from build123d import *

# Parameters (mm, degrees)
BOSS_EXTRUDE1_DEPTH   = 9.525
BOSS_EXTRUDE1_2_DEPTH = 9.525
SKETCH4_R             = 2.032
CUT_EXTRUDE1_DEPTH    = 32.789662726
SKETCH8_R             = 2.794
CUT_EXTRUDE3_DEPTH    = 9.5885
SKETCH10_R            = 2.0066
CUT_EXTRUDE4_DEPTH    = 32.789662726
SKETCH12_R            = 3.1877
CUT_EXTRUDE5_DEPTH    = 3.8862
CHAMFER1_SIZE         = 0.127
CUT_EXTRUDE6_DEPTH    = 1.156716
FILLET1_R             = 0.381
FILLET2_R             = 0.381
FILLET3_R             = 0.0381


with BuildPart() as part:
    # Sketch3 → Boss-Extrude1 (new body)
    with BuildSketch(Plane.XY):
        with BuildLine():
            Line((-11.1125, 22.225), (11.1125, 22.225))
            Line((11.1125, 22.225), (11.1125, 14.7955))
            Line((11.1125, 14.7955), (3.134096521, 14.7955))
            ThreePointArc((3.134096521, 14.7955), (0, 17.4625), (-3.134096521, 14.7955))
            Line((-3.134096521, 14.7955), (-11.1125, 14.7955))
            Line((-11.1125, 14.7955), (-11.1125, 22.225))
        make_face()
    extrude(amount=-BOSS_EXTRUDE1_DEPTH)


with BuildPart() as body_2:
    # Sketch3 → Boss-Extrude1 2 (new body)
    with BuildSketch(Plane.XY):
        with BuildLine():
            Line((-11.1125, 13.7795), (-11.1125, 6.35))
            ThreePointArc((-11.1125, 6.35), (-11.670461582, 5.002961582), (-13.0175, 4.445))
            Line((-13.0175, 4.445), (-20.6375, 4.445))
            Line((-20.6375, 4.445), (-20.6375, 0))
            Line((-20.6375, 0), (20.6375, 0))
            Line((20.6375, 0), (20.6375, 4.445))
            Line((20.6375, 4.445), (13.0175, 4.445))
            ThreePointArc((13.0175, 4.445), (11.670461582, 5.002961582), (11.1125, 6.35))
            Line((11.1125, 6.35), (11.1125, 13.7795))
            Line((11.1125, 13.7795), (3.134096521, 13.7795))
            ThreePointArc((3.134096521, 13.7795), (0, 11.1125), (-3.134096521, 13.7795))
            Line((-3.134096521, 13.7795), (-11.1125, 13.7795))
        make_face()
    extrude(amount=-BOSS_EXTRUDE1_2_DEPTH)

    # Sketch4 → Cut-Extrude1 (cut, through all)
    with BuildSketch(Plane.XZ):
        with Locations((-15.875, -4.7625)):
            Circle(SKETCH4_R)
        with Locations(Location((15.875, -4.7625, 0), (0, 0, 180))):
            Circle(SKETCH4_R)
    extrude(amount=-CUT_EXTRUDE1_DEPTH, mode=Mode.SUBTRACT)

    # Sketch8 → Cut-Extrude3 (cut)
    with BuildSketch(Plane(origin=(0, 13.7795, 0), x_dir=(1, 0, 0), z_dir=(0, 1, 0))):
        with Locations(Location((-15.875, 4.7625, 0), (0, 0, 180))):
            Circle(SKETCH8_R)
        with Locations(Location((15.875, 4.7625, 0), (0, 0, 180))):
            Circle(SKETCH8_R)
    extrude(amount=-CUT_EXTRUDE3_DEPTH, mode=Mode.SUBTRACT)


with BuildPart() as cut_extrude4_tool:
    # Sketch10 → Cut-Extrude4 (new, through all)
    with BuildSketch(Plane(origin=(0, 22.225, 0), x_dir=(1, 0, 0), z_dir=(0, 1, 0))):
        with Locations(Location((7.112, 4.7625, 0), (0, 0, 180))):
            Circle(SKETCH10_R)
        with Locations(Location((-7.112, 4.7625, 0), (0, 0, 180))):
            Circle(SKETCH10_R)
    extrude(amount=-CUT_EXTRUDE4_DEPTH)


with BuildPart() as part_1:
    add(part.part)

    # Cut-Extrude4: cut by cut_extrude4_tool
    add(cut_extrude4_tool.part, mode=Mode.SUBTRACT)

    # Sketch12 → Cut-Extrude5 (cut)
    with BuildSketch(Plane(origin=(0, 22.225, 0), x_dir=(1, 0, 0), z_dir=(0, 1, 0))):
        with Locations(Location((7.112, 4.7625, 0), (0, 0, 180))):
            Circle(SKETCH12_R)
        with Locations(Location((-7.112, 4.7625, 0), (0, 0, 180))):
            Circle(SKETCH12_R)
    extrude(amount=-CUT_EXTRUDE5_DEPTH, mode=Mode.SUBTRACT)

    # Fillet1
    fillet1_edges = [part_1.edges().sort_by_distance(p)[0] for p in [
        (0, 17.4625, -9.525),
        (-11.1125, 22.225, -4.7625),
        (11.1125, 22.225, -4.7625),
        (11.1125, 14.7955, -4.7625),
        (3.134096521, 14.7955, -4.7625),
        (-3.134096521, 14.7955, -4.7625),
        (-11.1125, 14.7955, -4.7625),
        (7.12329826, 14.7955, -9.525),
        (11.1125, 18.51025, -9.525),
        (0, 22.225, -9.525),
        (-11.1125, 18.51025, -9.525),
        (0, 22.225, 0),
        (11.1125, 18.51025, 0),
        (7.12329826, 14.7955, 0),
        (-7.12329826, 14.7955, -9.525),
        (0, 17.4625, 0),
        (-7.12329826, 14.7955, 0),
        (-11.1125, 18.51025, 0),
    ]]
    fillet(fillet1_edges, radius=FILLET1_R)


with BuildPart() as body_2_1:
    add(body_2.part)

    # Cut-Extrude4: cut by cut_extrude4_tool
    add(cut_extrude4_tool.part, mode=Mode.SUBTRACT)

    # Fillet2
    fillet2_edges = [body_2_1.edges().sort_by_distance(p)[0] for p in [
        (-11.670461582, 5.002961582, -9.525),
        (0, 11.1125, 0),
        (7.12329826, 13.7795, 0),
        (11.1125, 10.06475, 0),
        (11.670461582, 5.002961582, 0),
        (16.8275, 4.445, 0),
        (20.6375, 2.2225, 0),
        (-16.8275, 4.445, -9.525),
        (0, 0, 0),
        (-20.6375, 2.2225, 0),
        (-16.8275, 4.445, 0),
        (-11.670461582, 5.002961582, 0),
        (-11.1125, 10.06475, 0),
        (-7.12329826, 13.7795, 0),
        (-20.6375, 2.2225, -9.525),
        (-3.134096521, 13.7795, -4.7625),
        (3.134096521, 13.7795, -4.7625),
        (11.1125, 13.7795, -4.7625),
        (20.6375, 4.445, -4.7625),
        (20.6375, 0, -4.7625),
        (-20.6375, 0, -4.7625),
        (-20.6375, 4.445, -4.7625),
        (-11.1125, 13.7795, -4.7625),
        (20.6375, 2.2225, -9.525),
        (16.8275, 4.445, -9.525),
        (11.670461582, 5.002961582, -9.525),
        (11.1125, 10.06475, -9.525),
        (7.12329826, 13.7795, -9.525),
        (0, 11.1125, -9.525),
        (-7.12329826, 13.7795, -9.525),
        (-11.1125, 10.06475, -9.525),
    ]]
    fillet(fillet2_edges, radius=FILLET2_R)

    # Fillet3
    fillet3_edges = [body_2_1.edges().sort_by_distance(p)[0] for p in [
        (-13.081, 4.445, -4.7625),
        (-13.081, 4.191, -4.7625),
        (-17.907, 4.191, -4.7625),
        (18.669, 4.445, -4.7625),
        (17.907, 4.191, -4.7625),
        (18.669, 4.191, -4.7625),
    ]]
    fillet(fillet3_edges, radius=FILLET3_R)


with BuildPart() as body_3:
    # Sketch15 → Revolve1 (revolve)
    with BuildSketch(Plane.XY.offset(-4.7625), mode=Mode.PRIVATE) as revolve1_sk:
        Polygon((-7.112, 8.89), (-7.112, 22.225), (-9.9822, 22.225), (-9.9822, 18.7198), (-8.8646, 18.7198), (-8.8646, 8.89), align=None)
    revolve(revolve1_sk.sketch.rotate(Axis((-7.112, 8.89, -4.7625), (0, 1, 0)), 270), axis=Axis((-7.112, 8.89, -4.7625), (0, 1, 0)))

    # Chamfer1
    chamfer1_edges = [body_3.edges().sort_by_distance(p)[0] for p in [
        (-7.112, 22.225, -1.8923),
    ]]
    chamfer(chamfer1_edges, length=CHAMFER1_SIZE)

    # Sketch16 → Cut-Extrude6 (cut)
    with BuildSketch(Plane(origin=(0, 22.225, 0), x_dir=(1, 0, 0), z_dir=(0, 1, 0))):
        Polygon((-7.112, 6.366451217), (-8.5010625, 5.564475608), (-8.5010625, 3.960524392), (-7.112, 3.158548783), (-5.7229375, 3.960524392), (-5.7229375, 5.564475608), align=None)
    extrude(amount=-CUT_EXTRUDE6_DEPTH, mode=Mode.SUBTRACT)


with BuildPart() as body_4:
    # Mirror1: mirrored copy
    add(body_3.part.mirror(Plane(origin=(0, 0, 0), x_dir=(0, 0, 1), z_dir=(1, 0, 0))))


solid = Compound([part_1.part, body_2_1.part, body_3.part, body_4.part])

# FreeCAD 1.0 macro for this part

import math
import FreeCAD as App
import Part
import Sketcher
from FreeCAD import Vector
Q = App.Units.Quantity


def edges_at(feature, points):
    """Names of the edges that pass closest to the given points."""
    edges = feature.Shape.Edges
    near = lambda p: min(range(len(edges)), key=lambda i: edges[i].distToShape(Part.Vertex(*p))[0])
    return sorted({f"Edge{near(p) + 1}" for p in points})


def add_polygon(sketch, points):
    """Adds a closed chain of lines whose ends are joined by coincident constraints."""
    first, n = sketch.GeometryCount, len(points)
    for a, b in zip(points, points[1:] + points[:1]):
        sketch.addGeometry(Part.LineSegment(App.Vector(*a, 0), App.Vector(*b, 0)), False)
    for i in range(n):
        sketch.addConstraint(Sketcher.Constraint("Coincident", first + i, 2, first + (i + 1) % n, 1))

doc = App.newDocument("Part")
body = doc.addObject("PartDesign::Body", "Body")

sketch1 = body.newObject("Sketcher::SketchObject", "Sketch")
sketch1.AttachmentSupport = (doc.getObject("XY_Plane"), [""])
sketch1.MapMode = "FlatFace"
sketch1.addGeometry(Part.LineSegment(Vector(11.1125, 22.225, 0), Vector(-11.1125, 22.225, 0)), False)
sketch1.addGeometry(Part.LineSegment(Vector(-11.1125, 22.225, 0), Vector(-11.1125, 14.7955, 0)), False)
sketch1.addGeometry(Part.LineSegment(Vector(-11.1125, 14.7955, 0), Vector(-3.134097, 14.7955, 0)), False)
sketch1.addGeometry(Part.ArcOfCircle(Part.Circle(Vector(0, 14.2875, 0), Vector(0, 0, 1), 3.175), math.radians(9.206896), math.radians(170.793104)), False)
sketch1.addGeometry(Part.LineSegment(Vector(3.134097, 14.7955, 0), Vector(11.1125, 14.7955, 0)), False)
sketch1.addGeometry(Part.LineSegment(Vector(11.1125, 14.7955, 0), Vector(11.1125, 22.225, 0)), False)
sketch1.addConstraint(Sketcher.Constraint("Coincident", 0, 2, 1, 1))
sketch1.addConstraint(Sketcher.Constraint("Coincident", 1, 2, 2, 1))
sketch1.addConstraint(Sketcher.Constraint("Coincident", 2, 2, 3, 2))
sketch1.addConstraint(Sketcher.Constraint("Coincident", 3, 1, 4, 1))
sketch1.addConstraint(Sketcher.Constraint("Coincident", 4, 2, 5, 1))
sketch1.addConstraint(Sketcher.Constraint("Coincident", 5, 2, 0, 1))
sketch1.addConstraint(Sketcher.Constraint("Horizontal", 0))
sketch1.addConstraint(Sketcher.Constraint("Vertical", 1))
sketch1.addConstraint(Sketcher.Constraint("Horizontal", 2))
sketch1.addConstraint(Sketcher.Constraint("Horizontal", 4))
sketch1.addConstraint(Sketcher.Constraint("Vertical", 5))
sketch1.addConstraint(Sketcher.Constraint("Symmetric", 2, 2, 3, 1, -2))
sketch1.addConstraint(Sketcher.Constraint("Equal", 2, 4))
sketch1.addConstraint(Sketcher.Constraint("Radius", 3, Q("0.125 in")))
sketch1.addConstraint(Sketcher.Constraint("DistanceX", 0, 2, 0, 1, Q("0.875 in")))
sketch1.addConstraint(Sketcher.Constraint("DistanceY", 3, 3, 1, 2, Q("0.02 in")))
sketch1.addConstraint(Sketcher.Constraint("DistanceY", 1, 2, 1, 1, Q("0.2925 in")))
sketch1.addConstraint(Sketcher.Constraint("DistanceY", -1, 1, 3, 3, Q("0.5625 in")))
pad1 = body.newObject("PartDesign::Pad", "Pad")
pad1.Profile = sketch1
pad1.Length = Q("0.375 in")
pad1.Reversed = True
body2 = doc.addObject("PartDesign::Body", "Body001")

sketch2 = body2.newObject("Sketcher::SketchObject", "Sketch001")
sketch2.AttachmentSupport = (doc.getObject("XY_Plane001"), [""])
sketch2.MapMode = "FlatFace"
sketch2.addGeometry(Part.LineSegment(Vector(-11.1125, 13.7795, 0), Vector(-11.1125, 6.35, 0)), False)
sketch2.addGeometry(Part.ArcOfCircle(Part.Circle(Vector(-13.0175, 6.35, 0), Vector(0, 0, 1), 1.905), math.radians(-90), math.radians(0)), False)
sketch2.addGeometry(Part.LineSegment(Vector(-13.0175, 4.445, 0), Vector(-20.6375, 4.445, 0)), False)
sketch2.addGeometry(Part.LineSegment(Vector(-20.6375, 4.445, 0), Vector(-20.6375, 0, 0)), False)
sketch2.addGeometry(Part.LineSegment(Vector(-20.6375, 0, 0), Vector(20.6375, 0, 0)), False)
sketch2.addGeometry(Part.LineSegment(Vector(20.6375, 0, 0), Vector(20.6375, 4.445, 0)), False)
sketch2.addGeometry(Part.LineSegment(Vector(20.6375, 4.445, 0), Vector(13.0175, 4.445, 0)), False)
sketch2.addGeometry(Part.ArcOfCircle(Part.Circle(Vector(13.0175, 6.35, 0), Vector(0, 0, 1), 1.905), math.radians(-180), math.radians(-90)), False)
sketch2.addGeometry(Part.LineSegment(Vector(11.1125, 6.35, 0), Vector(11.1125, 13.7795, 0)), False)
sketch2.addGeometry(Part.LineSegment(Vector(11.1125, 13.7795, 0), Vector(3.134097, 13.7795, 0)), False)
sketch2.addGeometry(Part.ArcOfCircle(Part.Circle(Vector(0, 14.2875, 0), Vector(0, 0, 1), 3.175), math.radians(-170.793104), math.radians(-9.206896)), False)
sketch2.addGeometry(Part.LineSegment(Vector(-3.134097, 13.7795, 0), Vector(-11.1125, 13.7795, 0)), False)
sketch2.addConstraint(Sketcher.Constraint("Tangent", 0, 2, 1, 2))
sketch2.addConstraint(Sketcher.Constraint("Tangent", 1, 1, 2, 1))
sketch2.addConstraint(Sketcher.Constraint("Coincident", 2, 2, 3, 1))
sketch2.addConstraint(Sketcher.Constraint("Coincident", 3, 2, 4, 1))
sketch2.addConstraint(Sketcher.Constraint("Coincident", 4, 2, 5, 1))
sketch2.addConstraint(Sketcher.Constraint("Coincident", 5, 2, 6, 1))
sketch2.addConstraint(Sketcher.Constraint("Tangent", 6, 2, 7, 2))
sketch2.addConstraint(Sketcher.Constraint("Tangent", 7, 1, 8, 1))
sketch2.addConstraint(Sketcher.Constraint("Coincident", 8, 2, 9, 1))
sketch2.addConstraint(Sketcher.Constraint("Coincident", 9, 2, 10, 2))
sketch2.addConstraint(Sketcher.Constraint("Coincident", 10, 1, 11, 1))
sketch2.addConstraint(Sketcher.Constraint("Coincident", 11, 2, 0, 1))
sketch2.addConstraint(Sketcher.Constraint("Vertical", 0))
sketch2.addConstraint(Sketcher.Constraint("Horizontal", 2))
sketch2.addConstraint(Sketcher.Constraint("Vertical", 3))
sketch2.addConstraint(Sketcher.Constraint("Horizontal", 4))
sketch2.addConstraint(Sketcher.Constraint("Vertical", 5))
sketch2.addConstraint(Sketcher.Constraint("Horizontal", 6))
sketch2.addConstraint(Sketcher.Constraint("Vertical", 8))
sketch2.addConstraint(Sketcher.Constraint("Horizontal", 9))
sketch2.addConstraint(Sketcher.Constraint("Horizontal", 11))
sketch2.addConstraint(Sketcher.Constraint("Equal", 1, 7))
sketch2.addConstraint(Sketcher.Constraint("Symmetric", 3, 2, 4, 2, -1, 1))
sketch2.addConstraint(Sketcher.Constraint("Symmetric", 1, 3, 7, 3, -2))
sketch2.addConstraint(Sketcher.Constraint("Symmetric", 9, 2, 10, 1, -2))
sketch2.addConstraint(Sketcher.Constraint("DistanceX", 2, 2, 2, 1, Q("0.3 in")))
sketch2.addConstraint(Sketcher.Constraint("Radius", 1, Q("0.075 in")))
sketch2.addConstraint(Sketcher.Constraint("Radius", 10, Q("0.125 in")))
sketch2.addConstraint(Sketcher.Constraint("DistanceX", 4, 1, 4, 2, Q("1.625 in")))
sketch2.addConstraint(Sketcher.Constraint("DistanceY", 3, 2, 3, 1, Q("0.175 in")))
sketch2.addConstraint(Sketcher.Constraint("DistanceY", 8, 2, 10, 3, Q("0.02 in")))
sketch2.addConstraint(Sketcher.Constraint("DistanceY", 0, 2, 0, 1, Q("0.2925 in")))
pad2 = body2.newObject("PartDesign::Pad", "Pad001")
pad2.Profile = sketch2
pad2.Length = Q("0.375 in")
pad2.Reversed = True

sketch3 = body2.newObject("Sketcher::SketchObject", "Sketch002")
sketch3.AttachmentSupport = (doc.getObject("XZ_Plane001"), [""])
sketch3.MapMode = "FlatFace"
sketch3.addGeometry(Part.Circle(Vector(-15.875, -4.7625, 0), Vector(0, 0, 1), 2.032), False)
sketch3.addGeometry(Part.Circle(Vector(15.875, -4.7625, 0), Vector(0, 0, 1), 2.032), False)
sketch3.addConstraint(Sketcher.Constraint("Equal", 0, 1))
sketch3.addConstraint(Sketcher.Constraint("Symmetric", 0, 3, 1, 3, -2))
sketch3.addConstraint(Sketcher.Constraint("Diameter", 0, Q("0.16 in")))
sketch3.addConstraint(Sketcher.Constraint("DistanceX", 0, 3, 1, 3, Q("1.25 in")))
sketch3.addConstraint(Sketcher.Constraint("DistanceY", 0, 3, -1, 1, Q("0.1875 in")))
pocket1 = body2.newObject("PartDesign::Pocket", "Pocket")
pocket1.Profile = sketch3
pocket1.Type = "ThroughAll"

sketch4 = body2.newObject("Sketcher::SketchObject", "Sketch003")
sketch4.AttachmentSupport = (doc.getObject("XZ_Plane001"), [""])
sketch4.MapMode = "FlatFace"
sketch4.AttachmentOffset = App.Placement(Vector(0, 0, -0.5425 * 25.4), App.Rotation())
sketch4.addGeometry(Part.Circle(Vector(-15.875, -4.7625, 0), Vector(0, 0, 1), 2.794), False)
sketch4.addGeometry(Part.Circle(Vector(15.875, -4.7625, 0), Vector(0, 0, 1), 2.794), False)
sketch4.addConstraint(Sketcher.Constraint("Equal", 0, 1))
sketch4.addConstraint(Sketcher.Constraint("Symmetric", 0, 3, 1, 3, -2))
sketch4.addConstraint(Sketcher.Constraint("Diameter", 0, Q("0.22 in")))
sketch4.addConstraint(Sketcher.Constraint("DistanceX", 0, 3, 1, 3, Q("1.25 in")))
sketch4.addConstraint(Sketcher.Constraint("DistanceY", 0, 3, -1, 1, Q("0.1875 in")))
pocket2 = body2.newObject("PartDesign::Pocket", "Pocket001")
pocket2.Profile = sketch4
pocket2.Length = Q("0.3775 in")
pocket2.Reversed = True
body3 = doc.addObject("PartDesign::Body", "Body002")
body3.AllowCompound = True

sketch5 = body3.newObject("Sketcher::SketchObject", "Sketch004")
sketch5.AttachmentSupport = (doc.getObject("XZ_Plane002"), [""])
sketch5.MapMode = "FlatFace"
sketch5.AttachmentOffset = App.Placement(Vector(0, 0, -0.875 * 25.4), App.Rotation())
sketch5.addGeometry(Part.Circle(Vector(7.112, -4.7625, 0), Vector(0, 0, 1), 2.0066), False)
sketch5.addGeometry(Part.Circle(Vector(-7.112, -4.7625, 0), Vector(0, 0, 1), 2.0066), False)
sketch5.addConstraint(Sketcher.Constraint("Equal", 0, 1))
sketch5.addConstraint(Sketcher.Constraint("Symmetric", 0, 3, 1, 3, -2))
sketch5.addConstraint(Sketcher.Constraint("Diameter", 0, Q("0.158 in")))
sketch5.addConstraint(Sketcher.Constraint("DistanceX", -1, 1, 0, 3, Q("0.28 in")))
sketch5.addConstraint(Sketcher.Constraint("DistanceY", 0, 3, -1, 1, Q("0.1875 in")))
pad3 = body3.newObject("PartDesign::Pad", "Pad002")
pad3.Profile = sketch5
pad3.Length = 32.789663
doc.recompute()

body4 = doc.addObject("PartDesign::Body", "Body003")
body4.BaseFeature = body3
boolean = body.newObject("PartDesign::Boolean", "Boolean")
boolean.Type = "Cut"
boolean.addObjects([body4])
doc.recompute()

sketch6 = body.newObject("Sketcher::SketchObject", "Sketch005")
sketch6.AttachmentSupport = (doc.getObject("XZ_Plane"), [""])
sketch6.MapMode = "FlatFace"
sketch6.AttachmentOffset = App.Placement(Vector(0, 0, -0.875 * 25.4), App.Rotation())
sketch6.addGeometry(Part.Circle(Vector(7.112, -4.7625, 0), Vector(0, 0, 1), 3.1877), False)
sketch6.addGeometry(Part.Circle(Vector(-7.112, -4.7625, 0), Vector(0, 0, 1), 3.1877), False)
sketch6.addConstraint(Sketcher.Constraint("Equal", 0, 1))
sketch6.addConstraint(Sketcher.Constraint("Symmetric", 0, 3, 1, 3, -2))
sketch6.addConstraint(Sketcher.Constraint("Diameter", 0, Q("0.251 in")))
sketch6.addConstraint(Sketcher.Constraint("DistanceX", -1, 1, 0, 3, Q("0.28 in")))
sketch6.addConstraint(Sketcher.Constraint("DistanceY", 0, 3, -1, 1, Q("0.1875 in")))
pocket3 = body.newObject("PartDesign::Pocket", "Pocket002")
pocket3.Profile = sketch6
pocket3.Length = Q("0.153 in")
pocket3.Reversed = True
doc.recompute()

fillet = body.newObject("PartDesign::Fillet", "Fillet")
fillet.Base = (pocket3, edges_at(pocket3, [
    (0, 17.462, -9.525),
    (-11.113, 22.225, -4.763),
    (11.113, 22.225, -4.763),
    (11.113, 14.796, -4.763),
    (3.134, 14.796, -4.763),
    (-3.134, 14.796, -4.763),
    (-11.113, 14.796, -4.763),
    (7.123, 14.796, -9.525),
    (11.113, 18.51, -9.525),
    (0, 22.225, -9.525),
    (-11.113, 18.51, -9.525),
    (0, 22.225, 0),
    (11.113, 18.51, 0),
    (7.123, 14.796, 0),
    (-7.123, 14.796, -9.525),
    (0, 17.462, 0),
    (-7.123, 14.796, 0),
    (-11.113, 18.51, 0),
]))
fillet.Radius = Q("0.015 in")
doc.recompute()

boolean2 = body2.newObject("PartDesign::Boolean", "Boolean001")
boolean2.Type = "Cut"
boolean2.addObjects([body3])
doc.recompute()

fillet2 = body2.newObject("PartDesign::Fillet", "Fillet001")
fillet2.Base = (boolean2, edges_at(boolean2, [
    (-11.67, 5.003, -9.525),
    (0, 11.113, 0),
    (7.123, 13.78, 0),
    (11.113, 10.065, 0),
    (11.67, 5.003, 0),
    (16.828, 4.445, 0),
    (20.637, 2.223, 0),
    (-16.828, 4.445, -9.525),
    (0, 0, 0),
    (-20.637, 2.223, 0),
    (-16.828, 4.445, 0),
    (-11.67, 5.003, 0),
    (-11.113, 10.065, 0),
    (-7.123, 13.78, 0),
    (-20.637, 2.223, -9.525),
    (-3.134, 13.78, -4.763),
    (3.134, 13.78, -4.763),
    (11.113, 13.78, -4.763),
    (20.637, 4.445, -4.763),
    (20.637, 0, -4.763),
    (-20.637, 0, -4.763),
    (-20.637, 4.445, -4.763),
    (-11.113, 13.78, -4.763),
    (20.637, 2.223, -9.525),
    (16.828, 4.445, -9.525),
    (11.67, 5.003, -9.525),
    (11.113, 10.065, -9.525),
    (7.123, 13.78, -9.525),
    (0, 11.113, -9.525),
    (-7.123, 13.78, -9.525),
    (-11.113, 10.065, -9.525),
]))
fillet2.Radius = Q("0.015 in")
doc.recompute()

fillet3 = body2.newObject("PartDesign::Fillet", "Fillet002")
fillet3.Base = (fillet2, edges_at(fillet2, [
    (-13.081, 4.445, -4.763),
    (-13.081, 4.191, -4.763),
    (-17.907, 4.191, -4.763),
    (18.669, 4.445, -4.763),
    (17.907, 4.191, -4.763),
    (18.669, 4.191, -4.763),
]))
fillet3.Radius = Q("0.0015 in")
body5 = doc.addObject("PartDesign::Body", "Body004")

sketch7 = body5.newObject("Sketcher::SketchObject", "Sketch006")
sketch7.AttachmentSupport = (doc.getObject("XY_Plane004"), [""])
sketch7.MapMode = "FlatFace"
sketch7.AttachmentOffset = App.Placement(Vector(0, 0, -0.1875 * 25.4), App.Rotation())
add_polygon(sketch7, [(-7.112, 8.89), (-7.112, 22.225), (-9.9822, 22.225), (-9.9822, 18.7198), (-8.8646, 18.7198), (-8.8646, 8.89)])
sketch7.addGeometry(Part.LineSegment(Vector(-7.112, 8.89, 0), Vector(-7.112, 22.225, 0)), True)
sketch7.addConstraint(Sketcher.Constraint("Vertical", 0))
sketch7.addConstraint(Sketcher.Constraint("Horizontal", 1))
sketch7.addConstraint(Sketcher.Constraint("Vertical", 2))
sketch7.addConstraint(Sketcher.Constraint("Horizontal", 3))
sketch7.addConstraint(Sketcher.Constraint("Vertical", 4))
sketch7.addConstraint(Sketcher.Constraint("Horizontal", 5))
sketch7.addConstraint(Sketcher.Constraint("Vertical", 6))
sketch7.addConstraint(Sketcher.Constraint("Coincident", 6, 1, 5, 2))
sketch7.addConstraint(Sketcher.Constraint("Horizontal", 1, 2, 6, 2))
sketch7.addConstraint(Sketcher.Constraint("DistanceX", 1, 2, 1, 1, Q("0.113 in")))
sketch7.addConstraint(Sketcher.Constraint("DistanceX", 3, 1, 3, 2, Q("0.044 in")))
sketch7.addConstraint(Sketcher.Constraint("DistanceY", 0, 1, 0, 2, Q("0.525 in")))
sketch7.addConstraint(Sketcher.Constraint("DistanceY", 2, 2, 2, 1, Q("0.138 in")))
sketch7.addConstraint(Sketcher.Constraint("DistanceX", 0, 2, -1, 1, Q("0.28 in")))
sketch7.addConstraint(Sketcher.Constraint("DistanceY", -1, 1, 4, 2, Q("0.35 in")))
revolution = body5.newObject("PartDesign::Revolution", "Revolution")
revolution.Profile = sketch7
revolution.ReferenceAxis = (sketch7, ["Axis0"])
revolution.Angle = 360
doc.recompute()

chamfer = body5.newObject("PartDesign::Chamfer", "Chamfer")
chamfer.Base = (revolution, edges_at(revolution, [(-7.112, 22.225, -1.892)]))
chamfer.Size = Q("0.005 in")

sketch8 = body5.newObject("Sketcher::SketchObject", "Sketch007")
sketch8.AttachmentSupport = (doc.getObject("XZ_Plane004"), [""])
sketch8.MapMode = "FlatFace"
sketch8.AttachmentOffset = App.Placement(Vector(0, 0, -0.875 * 25.4), App.Rotation())
add_polygon(sketch8, [(-7.112, -6.366451), (-8.501062, -5.564476), (-8.501062, -3.960524), (-7.112, -3.158549), (-5.722937, -3.960524), (-5.722937, -5.564476)])
sketch8.addConstraint(Sketcher.Constraint("Vertical", 1))
sketch8.addConstraint(Sketcher.Constraint("Vertical", 4))
sketch8.addConstraint(Sketcher.Constraint("Parallel", 0, 3))
sketch8.addConstraint(Sketcher.Constraint("Parallel", 2, 5))
sketch8.addConstraint(Sketcher.Constraint("Horizontal", 1, 2, 3, 2))
sketch8.addConstraint(Sketcher.Constraint("Horizontal", 0, 2, 4, 2))
sketch8.addConstraint(Sketcher.Constraint("Vertical", 2, 2, 5, 2))
sketch8.addConstraint(Sketcher.Constraint("Angle", 0, Q("150 deg")))
sketch8.addConstraint(Sketcher.Constraint("DistanceX", 2, 2, -1, 1, Q("0.28 in")))
sketch8.addConstraint(Sketcher.Constraint("DistanceX", 1, 2, 3, 2, Q("0.109375 in")))
sketch8.addConstraint(Sketcher.Constraint("DistanceY", 1, 1, 1, 2, Q("1.603951 mm")))
sketch8.addConstraint(Sketcher.Constraint("DistanceY", 2, 2, -1, 1, Q("3.158549 mm")))
pocket4 = body5.newObject("PartDesign::Pocket", "Pocket003")
pocket4.Profile = sketch8
pocket4.Length = 1.156716
pocket4.Reversed = True
body6 = doc.addObject("PartDesign::Body", "Body005")
doc.recompute()

mirroring = doc.addObject("Part::Mirroring", "Mirroring")
mirroring.Source = body5
mirroring.Base = Vector(0, 0, 0)
mirroring.Normal = Vector(1, 0, 0)
body6.BaseFeature = mirroring
doc.recompute()
mirroring.Visibility = False

doc.recompute()
